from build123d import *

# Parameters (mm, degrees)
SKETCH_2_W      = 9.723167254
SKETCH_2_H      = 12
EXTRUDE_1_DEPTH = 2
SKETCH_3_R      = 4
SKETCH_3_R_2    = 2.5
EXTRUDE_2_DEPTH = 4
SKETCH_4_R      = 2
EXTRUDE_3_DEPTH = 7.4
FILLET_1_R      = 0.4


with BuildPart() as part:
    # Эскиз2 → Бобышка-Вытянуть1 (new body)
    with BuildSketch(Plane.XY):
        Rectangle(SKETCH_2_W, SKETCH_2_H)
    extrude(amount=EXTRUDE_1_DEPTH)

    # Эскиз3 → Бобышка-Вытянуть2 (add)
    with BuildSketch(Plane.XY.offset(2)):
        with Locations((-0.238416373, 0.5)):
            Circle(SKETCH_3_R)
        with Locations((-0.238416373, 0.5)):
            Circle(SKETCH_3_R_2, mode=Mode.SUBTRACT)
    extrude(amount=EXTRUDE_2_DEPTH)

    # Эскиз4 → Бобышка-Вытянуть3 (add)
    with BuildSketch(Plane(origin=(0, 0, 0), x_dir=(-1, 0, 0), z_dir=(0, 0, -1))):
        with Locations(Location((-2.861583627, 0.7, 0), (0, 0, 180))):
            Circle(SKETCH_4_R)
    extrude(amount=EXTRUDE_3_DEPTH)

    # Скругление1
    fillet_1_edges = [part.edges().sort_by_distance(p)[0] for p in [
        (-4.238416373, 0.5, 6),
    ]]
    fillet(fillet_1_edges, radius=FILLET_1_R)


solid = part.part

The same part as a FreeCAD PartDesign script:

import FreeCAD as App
import Part
import Sketcher
Q = App.Units.Quantity


def edges_at(feature, points):
    """Names of the edges that pass closest to the given points."""
    edges = feature.Shape.Edges
    near = lambda p: min(range(len(edges)), key=lambda i: edges[i].distToShape(Part.Vertex(*p))[0])
    return sorted({f"Edge{near(p) + 1}" for p in points})

doc = App.newDocument("Part")
body = doc.addObject("PartDesign::Body", "Body")

sketch1 = doc.addObject("Sketcher::SketchObject", "Sketch")
body.addObject(sketch1)
sketch1.AttachmentSupport = (doc.XY_Plane, [""])
sketch1.MapMode = "FlatFace"
sketch1.addGeometry(Part.LineSegment(App.Vector(-4.861584, 6, 0), App.Vector(-4.861584, -6, 0)), False)
sketch1.addGeometry(Part.LineSegment(App.Vector(-4.861584, -6, 0), App.Vector(4.861584, -6, 0)), False)
sketch1.addGeometry(Part.LineSegment(App.Vector(4.861584, -6, 0), App.Vector(4.861584, 6, 0)), False)
sketch1.addGeometry(Part.LineSegment(App.Vector(4.861584, 6, 0), App.Vector(-4.861584, 6, 0)), False)
sketch1.addConstraint(Sketcher.Constraint("Coincident", 0, 2, 1, 1))
sketch1.addConstraint(Sketcher.Constraint("Coincident", 1, 2, 2, 1))
sketch1.addConstraint(Sketcher.Constraint("Coincident", 2, 2, 3, 1))
sketch1.addConstraint(Sketcher.Constraint("Coincident", 3, 2, 0, 1))
sketch1.addConstraint(Sketcher.Constraint("Vertical", 0))
sketch1.addConstraint(Sketcher.Constraint("Horizontal", 1))
sketch1.addConstraint(Sketcher.Constraint("Vertical", 2))
sketch1.addConstraint(Sketcher.Constraint("Horizontal", 3))
sketch1.addConstraint(Sketcher.Constraint("Symmetric", 0, 2, 2, 2, -1, 1))
sketch1.addConstraint(Sketcher.Constraint("DistanceY", 0, 2, 0, 1, Q("12 mm")))
sketch1.addConstraint(Sketcher.Constraint("DistanceX", 1, 1, 1, 2, Q("9.723167 mm")))
pad1 = doc.addObject("PartDesign::Pad", "Pad")
body.addObject(pad1)
pad1.Profile = sketch1
pad1.Length = 2

sketch2 = doc.addObject("Sketcher::SketchObject", "Sketch001")
body.addObject(sketch2)
sketch2.AttachmentSupport = (doc.XY_Plane, [""])
sketch2.MapMode = "FlatFace"
sketch2.AttachmentOffset = App.Placement(App.Vector(0, 0, 2), App.Rotation())
sketch2.addGeometry(Part.Circle(App.Vector(-0.238416, 0.5, 0), App.Vector(0, 0, 1), 4), False)
sketch2.addGeometry(Part.Circle(App.Vector(-0.238416, 0.5, 0), App.Vector(0, 0, 1), 2.5), False)
sketch2.addConstraint(Sketcher.Constraint("Coincident", 1, 3, 0, 3))
sketch2.addConstraint(Sketcher.Constraint("Diameter", 0, Q("8 mm")))
sketch2.addConstraint(Sketcher.Constraint("Diameter", 1, Q("5 mm")))
sketch2.addConstraint(Sketcher.Constraint("DistanceY", -1, 1, 0, 3, Q("0.5 mm")))
sketch2.addConstraint(Sketcher.Constraint("DistanceX", 0, 3, -1, 1, Q("0.238416 mm")))
pad2 = doc.addObject("PartDesign::Pad", "Pad001")
body.addObject(pad2)
pad2.Profile = sketch2
pad2.Length = 4

sketch3 = doc.addObject("Sketcher::SketchObject", "Sketch002")
body.addObject(sketch3)
sketch3.AttachmentSupport = (doc.XY_Plane, [""])
sketch3.MapMode = "FlatFace"
sketch3.addGeometry(Part.Circle(App.Vector(2.861584, 0.7, 0), App.Vector(0, 0, 1), 2), False)
sketch3.addConstraint(Sketcher.Constraint("Diameter", 0, Q("4 mm")))
sketch3.addConstraint(Sketcher.Constraint("DistanceY", -1, 1, 0, 3, Q("0.7 mm")))
sketch3.addConstraint(Sketcher.Constraint("DistanceX", -1, 1, 0, 3, Q("2.861584 mm")))
pad3 = doc.addObject("PartDesign::Pad", "Pad002")
body.addObject(pad3)
pad3.Profile = sketch3
pad3.Length = 7.4
pad3.Reversed = True
doc.recompute()

fillet = doc.addObject("PartDesign::Fillet", "Fillet")
body.addObject(fillet)
fillet.Base = (pad3, edges_at(pad3, [(-4.238, 0.5, 6)]))
fillet.Radius = 0.4

doc.recompute()
